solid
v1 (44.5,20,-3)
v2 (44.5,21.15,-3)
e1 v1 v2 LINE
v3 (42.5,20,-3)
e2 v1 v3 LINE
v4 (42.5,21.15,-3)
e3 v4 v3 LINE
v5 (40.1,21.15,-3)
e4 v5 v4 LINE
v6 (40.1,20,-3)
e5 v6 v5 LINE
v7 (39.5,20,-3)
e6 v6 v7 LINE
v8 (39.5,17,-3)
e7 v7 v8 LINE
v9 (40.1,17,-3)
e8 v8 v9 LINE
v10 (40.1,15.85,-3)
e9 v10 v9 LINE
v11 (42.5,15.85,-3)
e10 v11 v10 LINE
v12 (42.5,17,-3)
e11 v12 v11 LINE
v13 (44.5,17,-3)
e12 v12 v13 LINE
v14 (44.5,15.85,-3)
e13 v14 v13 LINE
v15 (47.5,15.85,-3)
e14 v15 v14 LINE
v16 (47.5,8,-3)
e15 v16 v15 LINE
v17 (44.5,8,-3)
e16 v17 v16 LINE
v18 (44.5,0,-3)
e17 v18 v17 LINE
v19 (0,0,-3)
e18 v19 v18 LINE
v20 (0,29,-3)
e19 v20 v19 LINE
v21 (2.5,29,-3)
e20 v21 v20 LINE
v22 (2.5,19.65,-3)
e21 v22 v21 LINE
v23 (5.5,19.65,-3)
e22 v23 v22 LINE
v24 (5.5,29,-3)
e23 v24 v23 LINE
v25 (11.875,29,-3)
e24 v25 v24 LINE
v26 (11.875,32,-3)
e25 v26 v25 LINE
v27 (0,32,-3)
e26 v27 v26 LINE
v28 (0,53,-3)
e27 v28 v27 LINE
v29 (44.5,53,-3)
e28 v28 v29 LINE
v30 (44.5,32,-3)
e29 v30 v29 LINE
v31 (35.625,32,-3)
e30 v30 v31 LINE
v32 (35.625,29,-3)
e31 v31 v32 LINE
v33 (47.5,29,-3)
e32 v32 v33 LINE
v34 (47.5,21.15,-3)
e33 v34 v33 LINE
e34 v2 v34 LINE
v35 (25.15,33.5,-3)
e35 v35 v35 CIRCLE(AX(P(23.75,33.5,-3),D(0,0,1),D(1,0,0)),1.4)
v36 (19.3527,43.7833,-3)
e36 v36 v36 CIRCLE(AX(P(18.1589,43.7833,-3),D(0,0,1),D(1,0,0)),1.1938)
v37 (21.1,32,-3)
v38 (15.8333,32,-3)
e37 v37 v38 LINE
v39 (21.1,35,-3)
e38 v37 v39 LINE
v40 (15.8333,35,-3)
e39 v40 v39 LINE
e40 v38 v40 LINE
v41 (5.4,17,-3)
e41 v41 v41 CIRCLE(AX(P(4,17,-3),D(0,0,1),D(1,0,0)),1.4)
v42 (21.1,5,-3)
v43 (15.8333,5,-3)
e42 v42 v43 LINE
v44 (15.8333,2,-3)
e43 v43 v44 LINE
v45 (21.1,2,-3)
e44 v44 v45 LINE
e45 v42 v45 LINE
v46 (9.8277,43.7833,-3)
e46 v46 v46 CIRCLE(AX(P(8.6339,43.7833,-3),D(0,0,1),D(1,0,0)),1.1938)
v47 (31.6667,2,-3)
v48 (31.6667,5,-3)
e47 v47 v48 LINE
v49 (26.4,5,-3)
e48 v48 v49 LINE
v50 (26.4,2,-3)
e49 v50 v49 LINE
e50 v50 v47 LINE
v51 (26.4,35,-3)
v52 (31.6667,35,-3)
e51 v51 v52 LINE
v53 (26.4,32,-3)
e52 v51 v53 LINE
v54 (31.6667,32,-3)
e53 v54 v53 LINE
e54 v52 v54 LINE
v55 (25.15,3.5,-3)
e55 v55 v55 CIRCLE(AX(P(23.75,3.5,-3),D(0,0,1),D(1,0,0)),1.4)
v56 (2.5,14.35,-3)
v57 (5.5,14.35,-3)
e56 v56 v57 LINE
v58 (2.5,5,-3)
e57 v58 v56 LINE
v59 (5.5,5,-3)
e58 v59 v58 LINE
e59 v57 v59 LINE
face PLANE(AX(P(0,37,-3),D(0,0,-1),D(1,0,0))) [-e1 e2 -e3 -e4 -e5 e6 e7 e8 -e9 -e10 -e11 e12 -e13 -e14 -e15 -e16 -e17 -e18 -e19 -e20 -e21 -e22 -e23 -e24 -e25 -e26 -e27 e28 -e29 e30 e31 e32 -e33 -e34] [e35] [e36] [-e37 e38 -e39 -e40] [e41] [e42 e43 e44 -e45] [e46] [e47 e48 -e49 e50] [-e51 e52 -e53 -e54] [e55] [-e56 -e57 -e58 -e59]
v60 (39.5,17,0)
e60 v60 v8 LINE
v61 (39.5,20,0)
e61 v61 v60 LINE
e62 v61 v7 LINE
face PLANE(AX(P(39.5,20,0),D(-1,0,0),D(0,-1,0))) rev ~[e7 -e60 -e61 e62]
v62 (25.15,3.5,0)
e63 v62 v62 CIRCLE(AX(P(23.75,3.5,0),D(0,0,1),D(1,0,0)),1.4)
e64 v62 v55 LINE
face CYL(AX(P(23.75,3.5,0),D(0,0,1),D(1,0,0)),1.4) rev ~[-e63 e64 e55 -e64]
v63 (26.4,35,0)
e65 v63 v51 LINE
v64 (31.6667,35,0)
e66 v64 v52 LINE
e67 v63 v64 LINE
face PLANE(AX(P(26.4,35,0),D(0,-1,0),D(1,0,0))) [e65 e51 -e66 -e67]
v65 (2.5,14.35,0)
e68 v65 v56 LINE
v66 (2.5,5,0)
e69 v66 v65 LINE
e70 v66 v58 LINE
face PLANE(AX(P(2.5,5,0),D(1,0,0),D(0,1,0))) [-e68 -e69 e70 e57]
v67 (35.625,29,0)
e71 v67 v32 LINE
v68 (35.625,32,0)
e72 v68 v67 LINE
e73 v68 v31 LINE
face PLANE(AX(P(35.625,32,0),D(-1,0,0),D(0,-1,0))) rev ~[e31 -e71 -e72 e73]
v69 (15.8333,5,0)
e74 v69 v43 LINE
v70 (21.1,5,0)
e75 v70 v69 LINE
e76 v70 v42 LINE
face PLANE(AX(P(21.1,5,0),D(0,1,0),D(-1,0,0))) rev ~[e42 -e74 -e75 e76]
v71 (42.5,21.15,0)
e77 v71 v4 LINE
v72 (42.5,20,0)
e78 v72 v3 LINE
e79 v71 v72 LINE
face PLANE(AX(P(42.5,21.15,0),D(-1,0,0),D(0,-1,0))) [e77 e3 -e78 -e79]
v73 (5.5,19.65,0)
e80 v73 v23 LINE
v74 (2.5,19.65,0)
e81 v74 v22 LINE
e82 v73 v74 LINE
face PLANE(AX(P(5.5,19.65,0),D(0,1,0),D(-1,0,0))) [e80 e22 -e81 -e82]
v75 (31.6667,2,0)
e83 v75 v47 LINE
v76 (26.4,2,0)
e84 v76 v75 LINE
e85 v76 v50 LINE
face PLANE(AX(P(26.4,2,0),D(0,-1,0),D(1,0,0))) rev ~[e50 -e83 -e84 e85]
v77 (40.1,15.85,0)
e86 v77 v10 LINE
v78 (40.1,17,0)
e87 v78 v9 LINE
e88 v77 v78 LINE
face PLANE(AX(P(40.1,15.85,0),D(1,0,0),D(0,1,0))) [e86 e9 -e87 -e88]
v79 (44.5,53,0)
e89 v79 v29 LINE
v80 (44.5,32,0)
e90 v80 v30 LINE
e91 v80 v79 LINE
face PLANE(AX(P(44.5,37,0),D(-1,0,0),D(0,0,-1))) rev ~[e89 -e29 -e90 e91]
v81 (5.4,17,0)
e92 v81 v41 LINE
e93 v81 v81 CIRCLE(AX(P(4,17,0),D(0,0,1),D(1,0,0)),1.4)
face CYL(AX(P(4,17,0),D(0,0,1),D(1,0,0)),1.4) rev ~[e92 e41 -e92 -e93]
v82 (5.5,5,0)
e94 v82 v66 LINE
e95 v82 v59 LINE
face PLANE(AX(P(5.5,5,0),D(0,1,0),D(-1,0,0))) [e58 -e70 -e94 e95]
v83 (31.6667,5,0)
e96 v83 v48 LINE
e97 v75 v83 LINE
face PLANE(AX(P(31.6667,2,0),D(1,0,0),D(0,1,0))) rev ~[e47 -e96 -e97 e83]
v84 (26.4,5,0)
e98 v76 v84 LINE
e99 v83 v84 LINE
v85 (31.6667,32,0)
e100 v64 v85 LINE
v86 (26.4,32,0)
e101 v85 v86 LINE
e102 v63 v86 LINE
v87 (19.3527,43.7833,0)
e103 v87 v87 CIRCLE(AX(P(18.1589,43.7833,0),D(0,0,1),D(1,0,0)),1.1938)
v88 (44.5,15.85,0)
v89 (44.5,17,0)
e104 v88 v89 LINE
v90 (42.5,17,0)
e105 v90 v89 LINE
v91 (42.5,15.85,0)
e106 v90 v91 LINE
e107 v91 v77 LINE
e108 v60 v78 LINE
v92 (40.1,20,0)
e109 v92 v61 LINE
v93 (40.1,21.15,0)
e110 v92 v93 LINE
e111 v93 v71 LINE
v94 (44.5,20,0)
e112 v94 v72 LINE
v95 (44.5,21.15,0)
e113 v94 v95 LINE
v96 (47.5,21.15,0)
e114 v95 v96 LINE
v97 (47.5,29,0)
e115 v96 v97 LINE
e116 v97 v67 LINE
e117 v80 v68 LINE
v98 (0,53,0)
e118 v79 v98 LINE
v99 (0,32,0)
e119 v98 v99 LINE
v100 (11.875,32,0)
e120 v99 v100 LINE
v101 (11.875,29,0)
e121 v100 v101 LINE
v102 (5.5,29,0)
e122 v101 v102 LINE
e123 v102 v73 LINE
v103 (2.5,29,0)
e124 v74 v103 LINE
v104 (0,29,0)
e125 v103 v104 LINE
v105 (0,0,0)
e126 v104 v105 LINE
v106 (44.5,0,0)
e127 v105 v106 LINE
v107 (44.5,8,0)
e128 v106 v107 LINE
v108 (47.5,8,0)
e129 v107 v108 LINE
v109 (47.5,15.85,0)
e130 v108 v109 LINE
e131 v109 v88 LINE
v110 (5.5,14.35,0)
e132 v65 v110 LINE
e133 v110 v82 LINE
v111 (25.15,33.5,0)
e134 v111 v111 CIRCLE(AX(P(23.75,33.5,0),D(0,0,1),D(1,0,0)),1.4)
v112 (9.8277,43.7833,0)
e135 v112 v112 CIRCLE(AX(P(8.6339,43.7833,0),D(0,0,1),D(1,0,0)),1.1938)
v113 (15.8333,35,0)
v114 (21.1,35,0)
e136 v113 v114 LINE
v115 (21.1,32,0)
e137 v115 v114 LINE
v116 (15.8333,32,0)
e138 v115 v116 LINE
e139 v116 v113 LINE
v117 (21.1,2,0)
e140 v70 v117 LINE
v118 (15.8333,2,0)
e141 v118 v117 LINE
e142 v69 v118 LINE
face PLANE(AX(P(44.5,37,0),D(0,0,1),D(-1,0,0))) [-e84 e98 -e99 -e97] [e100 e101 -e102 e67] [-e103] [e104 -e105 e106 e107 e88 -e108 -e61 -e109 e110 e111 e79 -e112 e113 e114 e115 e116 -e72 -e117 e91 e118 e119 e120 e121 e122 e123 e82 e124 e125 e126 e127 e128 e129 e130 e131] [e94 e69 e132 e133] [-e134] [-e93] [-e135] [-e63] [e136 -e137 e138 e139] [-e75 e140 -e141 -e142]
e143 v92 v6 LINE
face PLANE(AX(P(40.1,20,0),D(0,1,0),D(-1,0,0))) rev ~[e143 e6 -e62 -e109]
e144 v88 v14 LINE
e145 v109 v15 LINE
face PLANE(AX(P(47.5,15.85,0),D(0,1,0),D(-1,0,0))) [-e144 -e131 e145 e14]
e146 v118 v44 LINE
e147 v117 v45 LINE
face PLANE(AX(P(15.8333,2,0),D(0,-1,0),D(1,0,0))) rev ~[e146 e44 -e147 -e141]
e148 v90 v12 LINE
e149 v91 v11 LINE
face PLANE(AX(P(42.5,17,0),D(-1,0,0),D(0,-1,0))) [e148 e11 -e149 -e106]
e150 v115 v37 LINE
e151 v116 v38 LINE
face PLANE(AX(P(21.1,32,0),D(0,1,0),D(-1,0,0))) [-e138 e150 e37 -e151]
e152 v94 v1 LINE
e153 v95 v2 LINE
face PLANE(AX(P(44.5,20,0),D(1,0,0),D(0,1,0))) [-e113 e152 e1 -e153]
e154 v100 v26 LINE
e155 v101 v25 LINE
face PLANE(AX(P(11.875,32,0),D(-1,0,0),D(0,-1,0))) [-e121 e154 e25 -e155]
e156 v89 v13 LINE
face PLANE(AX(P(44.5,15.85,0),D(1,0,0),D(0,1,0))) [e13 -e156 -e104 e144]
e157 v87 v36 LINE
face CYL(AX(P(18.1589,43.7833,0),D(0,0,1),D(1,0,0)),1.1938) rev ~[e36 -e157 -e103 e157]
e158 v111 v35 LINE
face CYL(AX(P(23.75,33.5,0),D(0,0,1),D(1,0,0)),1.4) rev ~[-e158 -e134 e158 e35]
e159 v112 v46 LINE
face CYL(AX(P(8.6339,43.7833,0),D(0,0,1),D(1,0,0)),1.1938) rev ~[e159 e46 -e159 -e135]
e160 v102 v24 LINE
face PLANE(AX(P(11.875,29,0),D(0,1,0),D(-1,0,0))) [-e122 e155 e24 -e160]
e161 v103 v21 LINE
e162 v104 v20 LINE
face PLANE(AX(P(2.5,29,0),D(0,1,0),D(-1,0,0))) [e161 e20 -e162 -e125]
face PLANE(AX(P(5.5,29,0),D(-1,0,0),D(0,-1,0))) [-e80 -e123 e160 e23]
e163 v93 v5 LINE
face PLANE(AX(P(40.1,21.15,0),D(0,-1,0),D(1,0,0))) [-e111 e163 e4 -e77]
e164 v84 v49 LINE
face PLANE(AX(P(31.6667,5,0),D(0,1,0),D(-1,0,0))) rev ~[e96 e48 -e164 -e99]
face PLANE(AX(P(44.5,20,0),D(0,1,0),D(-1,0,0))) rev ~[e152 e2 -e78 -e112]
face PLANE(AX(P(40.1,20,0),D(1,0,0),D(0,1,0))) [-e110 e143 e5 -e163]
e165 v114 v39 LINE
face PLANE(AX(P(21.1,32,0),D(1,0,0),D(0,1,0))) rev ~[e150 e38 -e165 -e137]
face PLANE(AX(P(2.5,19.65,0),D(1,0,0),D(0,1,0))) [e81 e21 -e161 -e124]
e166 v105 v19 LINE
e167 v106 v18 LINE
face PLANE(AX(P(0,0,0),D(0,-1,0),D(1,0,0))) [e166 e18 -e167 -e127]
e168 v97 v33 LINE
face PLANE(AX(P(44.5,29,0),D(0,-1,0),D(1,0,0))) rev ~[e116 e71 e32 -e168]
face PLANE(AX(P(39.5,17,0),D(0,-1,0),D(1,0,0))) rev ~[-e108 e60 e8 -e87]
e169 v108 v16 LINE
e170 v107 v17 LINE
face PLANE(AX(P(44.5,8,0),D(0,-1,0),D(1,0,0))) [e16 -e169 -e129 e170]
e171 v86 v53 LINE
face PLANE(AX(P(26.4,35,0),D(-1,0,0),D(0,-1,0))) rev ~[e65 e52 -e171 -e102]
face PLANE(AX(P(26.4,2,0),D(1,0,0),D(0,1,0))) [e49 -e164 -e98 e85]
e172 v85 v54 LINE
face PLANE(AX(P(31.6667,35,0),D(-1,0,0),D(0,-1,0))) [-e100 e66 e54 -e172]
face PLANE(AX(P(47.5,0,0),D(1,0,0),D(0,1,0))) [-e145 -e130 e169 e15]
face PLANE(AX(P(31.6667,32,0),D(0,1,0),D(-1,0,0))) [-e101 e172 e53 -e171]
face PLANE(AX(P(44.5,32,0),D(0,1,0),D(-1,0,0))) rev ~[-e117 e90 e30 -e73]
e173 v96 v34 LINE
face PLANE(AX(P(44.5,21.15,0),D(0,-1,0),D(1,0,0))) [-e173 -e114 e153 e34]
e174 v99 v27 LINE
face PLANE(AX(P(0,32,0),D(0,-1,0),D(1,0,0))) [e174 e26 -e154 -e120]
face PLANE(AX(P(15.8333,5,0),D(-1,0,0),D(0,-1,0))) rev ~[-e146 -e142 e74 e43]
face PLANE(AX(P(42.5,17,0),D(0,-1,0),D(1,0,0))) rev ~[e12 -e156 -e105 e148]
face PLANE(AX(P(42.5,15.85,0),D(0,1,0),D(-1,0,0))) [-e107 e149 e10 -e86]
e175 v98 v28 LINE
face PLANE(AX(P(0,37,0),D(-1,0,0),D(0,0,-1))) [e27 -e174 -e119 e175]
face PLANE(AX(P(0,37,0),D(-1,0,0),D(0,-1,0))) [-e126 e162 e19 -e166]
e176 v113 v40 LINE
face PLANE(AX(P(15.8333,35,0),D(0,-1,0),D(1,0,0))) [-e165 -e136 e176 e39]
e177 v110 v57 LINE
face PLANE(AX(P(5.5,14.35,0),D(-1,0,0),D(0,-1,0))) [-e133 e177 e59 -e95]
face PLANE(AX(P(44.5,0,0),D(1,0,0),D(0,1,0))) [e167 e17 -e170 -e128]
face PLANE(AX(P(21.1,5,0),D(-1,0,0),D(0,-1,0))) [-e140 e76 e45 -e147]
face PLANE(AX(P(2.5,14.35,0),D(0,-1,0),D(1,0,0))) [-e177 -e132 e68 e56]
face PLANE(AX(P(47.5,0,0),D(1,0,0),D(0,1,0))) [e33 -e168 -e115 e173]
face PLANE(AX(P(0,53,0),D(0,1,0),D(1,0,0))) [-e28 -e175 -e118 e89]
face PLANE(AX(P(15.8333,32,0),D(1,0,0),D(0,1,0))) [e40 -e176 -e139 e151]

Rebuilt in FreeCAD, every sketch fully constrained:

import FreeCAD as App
import Part
import Sketcher

V = App.Vector


def add_polygon(sketch, points):
    """Adds a closed chain of lines whose ends are joined by coincident constraints."""
    first, n = sketch.GeometryCount, len(points)
    for a, b in zip(points, points[1:] + points[:1]):
        sketch.addGeometry(Part.LineSegment(App.Vector(*a, 0), App.Vector(*b, 0)), False)
    for i in range(n):
        sketch.addConstraint(Sketcher.Constraint("Coincident", first + i, 2, first + (i + 1) % n, 1))

doc = App.newDocument("Part")
body = doc.addObject("PartDesign::Body", "Body")

# Sketch on XY plane
sketch1 = body.newObject("Sketcher::SketchObject", "Sketch")
sketch1.AttachmentSupport = (doc.getObject("XY_Plane"), [""])
sketch1.MapMode = "FlatFace"
add_polygon(sketch1, [(0, 37), (0, 0), (48, 0), (48, 37)])  # lines 0-3
sketch1.addConstraint([
    Sketcher.Constraint("Vertical", 0),
    Sketcher.Constraint("Horizontal", 1),
    Sketcher.Constraint("Vertical", 2),
    Sketcher.Constraint("Horizontal", 3),
    Sketcher.Constraint("Coincident", 0, 2, -1, 1),
    Sketcher.Constraint("DistanceY", 0, 2, 0, 1, 37.0),
    Sketcher.Constraint("DistanceX", 1, 1, 1, 2, 47.5),
])
pad1 = body.newObject("PartDesign::Pad", "Pad")
pad1.Profile = sketch1
pad1.Length = 3
pad1.Reversed = True

# Sketch on XY plane
sketch2 = body.newObject("Sketcher::SketchObject", "Sketch001")
sketch2.AttachmentSupport = (doc.getObject("XY_Plane"), [""])
sketch2.MapMode = "FlatFace"
add_polygon(sketch2, [(44.5, 0), (47.5, 0), (47.5, 8), (44.5, 8)])  # lines 0-3
add_polygon(sketch2, [(44.5, 15.8), (47.5, 15.8), (47.5, 21.1), (44.5, 21.1), (44.5, 20), (42.5, 20), (42.5, 21.1), (40.1, 21.1), (40.1, 20), (39.5, 20), (39.5, 17), (40.1, 17), (40.1, 15.8), (42.5, 15.8), (42.5, 17), (44.5, 17)])  # lines 4-19
add_polygon(sketch2, [(0, 32), (0, 29), (2.5, 29), (2.5, 19.6), (5.5, 19.6), (5.5, 29), (11.9, 29), (11.9, 32)])  # lines 20-27
add_polygon(sketch2, [(47.5, 29), (47.5, 37), (44.5, 37), (44.5, 32), (35.6, 32), (35.6, 29)])  # lines 28-33
add_polygon(sketch2, [(21.1, 35), (15.8, 35), (15.8, 32), (21.1, 32)])  # lines 34-37
add_polygon(sketch2, [(31.7, 32), (31.7, 35), (26.4, 35), (26.4, 32)])  # lines 38-41
sketch2.addGeometry(Part.Circle(V(23.8, 33.5, 0), V(0, 0, 1), 1.4), False)  # 42
add_polygon(sketch2, [(15.8, 5), (15.8, 2), (21.1, 2), (21.1, 5)])  # lines 43-46
add_polygon(sketch2, [(26.4, 2), (31.7, 2), (31.7, 5), (26.4, 5)])  # lines 47-50
sketch2.addGeometry(Part.Circle(V(23.8, 3.5, 0), V(0, 0, 1), 1.4), False)  # 51
add_polygon(sketch2, [(5.5, 14.3), (2.5, 14.3), (2.5, 5), (5.5, 5)])  # lines 52-55
sketch2.addGeometry(Part.Circle(V(4, 17, 0), V(0, 0, 1), 1.4), False)  # 56
sketch2.addConstraint([
    Sketcher.Constraint("Horizontal", 0),
    Sketcher.Constraint("Vertical", 1),
    Sketcher.Constraint("Horizontal", 2),
    Sketcher.Constraint("Vertical", 3),
    Sketcher.Constraint("Horizontal", 4),
    Sketcher.Constraint("Vertical", 5),
    Sketcher.Constraint("Horizontal", 6),
    Sketcher.Constraint("Vertical", 7),
    Sketcher.Constraint("Horizontal", 8),
    Sketcher.Constraint("Vertical", 9),
    Sketcher.Constraint("Horizontal", 10),
    Sketcher.Constraint("Vertical", 11),
    Sketcher.Constraint("Horizontal", 12),
    Sketcher.Constraint("Vertical", 13),
    Sketcher.Constraint("Horizontal", 14),
    Sketcher.Constraint("Vertical", 15),
    Sketcher.Constraint("Horizontal", 16),
    Sketcher.Constraint("Vertical", 17),
    Sketcher.Constraint("Horizontal", 18),
    Sketcher.Constraint("Vertical", 19),
    Sketcher.Constraint("Vertical", 20),
    Sketcher.Constraint("Horizontal", 21),
    Sketcher.Constraint("Vertical", 22),
    Sketcher.Constraint("Horizontal", 23),
    Sketcher.Constraint("Vertical", 24),
    Sketcher.Constraint("Horizontal", 25),
    Sketcher.Constraint("Vertical", 26),
    Sketcher.Constraint("Horizontal", 27),
    Sketcher.Constraint("Vertical", 28),
    Sketcher.Constraint("Horizontal", 29),
    Sketcher.Constraint("Vertical", 30),
    Sketcher.Constraint("Horizontal", 31),
    Sketcher.Constraint("Vertical", 32),
    Sketcher.Constraint("Horizontal", 33),
    Sketcher.Constraint("Horizontal", 34),
    Sketcher.Constraint("Vertical", 35),
    Sketcher.Constraint("Horizontal", 36),
    Sketcher.Constraint("Vertical", 37),
    Sketcher.Constraint("Vertical", 38),
    Sketcher.Constraint("Horizontal", 39),
    Sketcher.Constraint("Vertical", 40),
    Sketcher.Constraint("Horizontal", 41),
    Sketcher.Constraint("Vertical", 43),
    Sketcher.Constraint("Horizontal", 44),
    Sketcher.Constraint("Vertical", 45),
    Sketcher.Constraint("Horizontal", 46),
    Sketcher.Constraint("Horizontal", 47),
    Sketcher.Constraint("Vertical", 48),
    Sketcher.Constraint("Horizontal", 49),
    Sketcher.Constraint("Vertical", 50),
    Sketcher.Constraint("Horizontal", 52),
    Sketcher.Constraint("Vertical", 53),
    Sketcher.Constraint("Horizontal", 54),
    Sketcher.Constraint("Vertical", 55),
    Sketcher.Constraint("Equal", 42, 51),
    Sketcher.Constraint("Equal", 51, 56),
    Sketcher.Constraint("PointOnObject", 0, 2, -1),
    Sketcher.Constraint("PointOnObject", 20, 2, -2),
    Sketcher.Constraint("Horizontal", 6, 2, 9, 2),
    Sketcher.Constraint("Horizontal", 8, 2, 11, 2),
    Sketcher.Constraint("Horizontal", 56, 3, 13, 2),
    Sketcher.Constraint("Horizontal", 4, 2, 15, 2),
    Sketcher.Constraint("Horizontal", 14, 2, 17, 2),
    Sketcher.Constraint("Horizontal", 21, 2, 24, 2),
    Sketcher.Constraint("Horizontal", 27, 2, 30, 2),
    Sketcher.Constraint("Horizontal", 25, 2, 32, 2),
    Sketcher.Constraint("Horizontal", 31, 2, 35, 2),
    Sketcher.Constraint("Horizontal", 37, 2, 38, 2),
    Sketcher.Constraint("Horizontal", 36, 2, 40, 2),
    Sketcher.Constraint("Horizontal", 44, 2, 47, 2),
    Sketcher.Constraint("Horizontal", 46, 2, 48, 2),
    Sketcher.Constraint("Horizontal", 49, 2, 53, 2),
    Sketcher.Constraint("Vertical", 42, 3, 51, 3),
    Sketcher.Constraint("Vertical", 1, 2, 4, 2),
    Sketcher.Constraint("Vertical", 3, 2, 6, 2),
    Sketcher.Constraint("Vertical", 11, 2, 14, 2),
    Sketcher.Constraint("Vertical", 9, 2, 16, 2),
    Sketcher.Constraint("Vertical", 7, 2, 18, 2),
    Sketcher.Constraint("Vertical", 5, 2, 28, 2),
    Sketcher.Constraint("Vertical", 19, 2, 29, 2),
    Sketcher.Constraint("Vertical", 35, 2, 43, 2),
    Sketcher.Constraint("Vertical", 37, 2, 44, 2),
    Sketcher.Constraint("Vertical", 41, 2, 47, 2),
    Sketcher.Constraint("Vertical", 40, 2, 49, 2),
    Sketcher.Constraint("Vertical", 22, 2, 52, 2),
    Sketcher.Constraint("Vertical", 24, 2, 54, 2),
    Sketcher.Constraint("Equal", 6, 23),
    Sketcher.Constraint("Equal", 27, 33),
    Sketcher.Constraint("Equal", 36, 39),
    Sketcher.Constraint("Equal", 54, 13),
    Sketcher.Constraint("Equal", 11, 15),
    Sketcher.Constraint("Equal", 13, 20),
    Sketcher.Constraint("Equal", 3, 28),
    Sketcher.Constraint("Equal", 32, 35),
    Sketcher.Constraint("Equal", 40, 43),
    Sketcher.Constraint("Equal", 24, 53),
    Sketcher.Constraint("Diameter", 42, 2.8),
    Sketcher.Constraint("DistanceX", 0, 1, 0, 2, 3.0),
    Sketcher.Constraint("DistanceX", 8, 2, 8, 1, 2.0),
    Sketcher.Constraint("DistanceY", 1, 1, 1, 2, 8.0),
    Sketcher.Constraint("DistanceX", 10, 2, 10, 1, 2.4),
    Sketcher.Constraint("DistanceY", 5, 1, 5, 2, 5.3),
    Sketcher.Constraint("DistanceY", -1, 1, 43, 2, 2.0),
    Sketcher.Constraint("DistanceX", 12, 2, 8, 2, 3.0),
    Sketcher.Constraint("DistanceX", -1, 1, 0, 2, 47.5),
    Sketcher.Constraint("DistanceX", 21, 2, 56, 3, 1.5),
    Sketcher.Constraint("DistanceY", 26, 2, 42, 3, 1.5),
    Sketcher.Constraint("DistanceX", 37, 2, 39, 2, 5.3),
    Sketcher.Constraint("DistanceY", 43, 2, 51, 3, 1.5),
    Sketcher.Constraint("DistanceY", 52, 2, 22, 2, 5.3),
    Sketcher.Constraint("DistanceX", -1, 1, 42, 3, 23.75),
    Sketcher.Constraint("DistanceY", 56, 3, 22, 2, 2.65),
    Sketcher.Constraint("DistanceX", 36, 2, 42, 3, 2.65),
    Sketcher.Constraint("DistanceX", 21, 1, 21, 2, 2.5),
    Sketcher.Constraint("DistanceY", -1, 1, 56, 3, 17.0),
    Sketcher.Constraint("DistanceX", -1, 1, 34, 2, 15.8333),
    Sketcher.Constraint("DistanceX", 25, 1, 25, 2, 6.375),
])
pocket1 = body.newObject("PartDesign::Pocket", "Pocket")
pocket1.Profile = sketch2
pocket1.Length = 3

# Sketch on XZ plane
sketch3 = body.newObject("Sketcher::SketchObject", "Sketch002")
sketch3.AttachmentSupport = (doc.getObject("XZ_Plane"), [""])
sketch3.MapMode = "FlatFace"
sketch3.AttachmentOffset = App.Placement(V(0, 0, -37), App.Rotation())
add_polygon(sketch3, [(0, 0), (44.5, 0), (44.5, -3), (0, -3)])  # lines 0-3
sketch3.addConstraint([
    Sketcher.Constraint("Horizontal", 0),
    Sketcher.Constraint("Vertical", 1),
    Sketcher.Constraint("Horizontal", 2),
    Sketcher.Constraint("Vertical", 3),
    Sketcher.Constraint("Coincident", 3, 2, -1, 1),
    Sketcher.Constraint("DistanceY", 1, 2, 1, 1, 3.0),
    Sketcher.Constraint("DistanceX", 0, 1, 0, 2, 44.5),
])
pad2 = body.newObject("PartDesign::Pad", "Pad001")
pad2.Profile = sketch3
pad2.Length = 16
pad2.Reversed = True

# Sketch on XY plane
sketch4 = body.newObject("Sketcher::SketchObject", "Sketch003")
sketch4.AttachmentSupport = (doc.getObject("XY_Plane"), [""])
sketch4.MapMode = "FlatFace"
sketch4.addGeometry([
    Part.Circle(V(8.6, 43.8, 0), V(0, 0, 1), 1.2),
    Part.Circle(V(18.2, 43.8, 0), V(0, 0, 1), 1.2),
], False)
sketch4.addConstraint([
    Sketcher.Constraint("Equal", 0, 1),
    Sketcher.Constraint("Horizontal", 0, 3, 1, 3),
    Sketcher.Constraint("Diameter", 0, 2.3876),
    Sketcher.Constraint("DistanceX", -1, 1, 0, 3, 8.634),
    Sketcher.Constraint("DistanceX", -1, 1, 1, 3, 18.159),
    Sketcher.Constraint("DistanceY", -1, 1, 0, 3, 43.7833),
])
pocket2 = body.newObject("PartDesign::Pocket", "Pocket001")
pocket2.Profile = sketch4
pocket2.Type = "UpToFirst"

doc.recompute()
